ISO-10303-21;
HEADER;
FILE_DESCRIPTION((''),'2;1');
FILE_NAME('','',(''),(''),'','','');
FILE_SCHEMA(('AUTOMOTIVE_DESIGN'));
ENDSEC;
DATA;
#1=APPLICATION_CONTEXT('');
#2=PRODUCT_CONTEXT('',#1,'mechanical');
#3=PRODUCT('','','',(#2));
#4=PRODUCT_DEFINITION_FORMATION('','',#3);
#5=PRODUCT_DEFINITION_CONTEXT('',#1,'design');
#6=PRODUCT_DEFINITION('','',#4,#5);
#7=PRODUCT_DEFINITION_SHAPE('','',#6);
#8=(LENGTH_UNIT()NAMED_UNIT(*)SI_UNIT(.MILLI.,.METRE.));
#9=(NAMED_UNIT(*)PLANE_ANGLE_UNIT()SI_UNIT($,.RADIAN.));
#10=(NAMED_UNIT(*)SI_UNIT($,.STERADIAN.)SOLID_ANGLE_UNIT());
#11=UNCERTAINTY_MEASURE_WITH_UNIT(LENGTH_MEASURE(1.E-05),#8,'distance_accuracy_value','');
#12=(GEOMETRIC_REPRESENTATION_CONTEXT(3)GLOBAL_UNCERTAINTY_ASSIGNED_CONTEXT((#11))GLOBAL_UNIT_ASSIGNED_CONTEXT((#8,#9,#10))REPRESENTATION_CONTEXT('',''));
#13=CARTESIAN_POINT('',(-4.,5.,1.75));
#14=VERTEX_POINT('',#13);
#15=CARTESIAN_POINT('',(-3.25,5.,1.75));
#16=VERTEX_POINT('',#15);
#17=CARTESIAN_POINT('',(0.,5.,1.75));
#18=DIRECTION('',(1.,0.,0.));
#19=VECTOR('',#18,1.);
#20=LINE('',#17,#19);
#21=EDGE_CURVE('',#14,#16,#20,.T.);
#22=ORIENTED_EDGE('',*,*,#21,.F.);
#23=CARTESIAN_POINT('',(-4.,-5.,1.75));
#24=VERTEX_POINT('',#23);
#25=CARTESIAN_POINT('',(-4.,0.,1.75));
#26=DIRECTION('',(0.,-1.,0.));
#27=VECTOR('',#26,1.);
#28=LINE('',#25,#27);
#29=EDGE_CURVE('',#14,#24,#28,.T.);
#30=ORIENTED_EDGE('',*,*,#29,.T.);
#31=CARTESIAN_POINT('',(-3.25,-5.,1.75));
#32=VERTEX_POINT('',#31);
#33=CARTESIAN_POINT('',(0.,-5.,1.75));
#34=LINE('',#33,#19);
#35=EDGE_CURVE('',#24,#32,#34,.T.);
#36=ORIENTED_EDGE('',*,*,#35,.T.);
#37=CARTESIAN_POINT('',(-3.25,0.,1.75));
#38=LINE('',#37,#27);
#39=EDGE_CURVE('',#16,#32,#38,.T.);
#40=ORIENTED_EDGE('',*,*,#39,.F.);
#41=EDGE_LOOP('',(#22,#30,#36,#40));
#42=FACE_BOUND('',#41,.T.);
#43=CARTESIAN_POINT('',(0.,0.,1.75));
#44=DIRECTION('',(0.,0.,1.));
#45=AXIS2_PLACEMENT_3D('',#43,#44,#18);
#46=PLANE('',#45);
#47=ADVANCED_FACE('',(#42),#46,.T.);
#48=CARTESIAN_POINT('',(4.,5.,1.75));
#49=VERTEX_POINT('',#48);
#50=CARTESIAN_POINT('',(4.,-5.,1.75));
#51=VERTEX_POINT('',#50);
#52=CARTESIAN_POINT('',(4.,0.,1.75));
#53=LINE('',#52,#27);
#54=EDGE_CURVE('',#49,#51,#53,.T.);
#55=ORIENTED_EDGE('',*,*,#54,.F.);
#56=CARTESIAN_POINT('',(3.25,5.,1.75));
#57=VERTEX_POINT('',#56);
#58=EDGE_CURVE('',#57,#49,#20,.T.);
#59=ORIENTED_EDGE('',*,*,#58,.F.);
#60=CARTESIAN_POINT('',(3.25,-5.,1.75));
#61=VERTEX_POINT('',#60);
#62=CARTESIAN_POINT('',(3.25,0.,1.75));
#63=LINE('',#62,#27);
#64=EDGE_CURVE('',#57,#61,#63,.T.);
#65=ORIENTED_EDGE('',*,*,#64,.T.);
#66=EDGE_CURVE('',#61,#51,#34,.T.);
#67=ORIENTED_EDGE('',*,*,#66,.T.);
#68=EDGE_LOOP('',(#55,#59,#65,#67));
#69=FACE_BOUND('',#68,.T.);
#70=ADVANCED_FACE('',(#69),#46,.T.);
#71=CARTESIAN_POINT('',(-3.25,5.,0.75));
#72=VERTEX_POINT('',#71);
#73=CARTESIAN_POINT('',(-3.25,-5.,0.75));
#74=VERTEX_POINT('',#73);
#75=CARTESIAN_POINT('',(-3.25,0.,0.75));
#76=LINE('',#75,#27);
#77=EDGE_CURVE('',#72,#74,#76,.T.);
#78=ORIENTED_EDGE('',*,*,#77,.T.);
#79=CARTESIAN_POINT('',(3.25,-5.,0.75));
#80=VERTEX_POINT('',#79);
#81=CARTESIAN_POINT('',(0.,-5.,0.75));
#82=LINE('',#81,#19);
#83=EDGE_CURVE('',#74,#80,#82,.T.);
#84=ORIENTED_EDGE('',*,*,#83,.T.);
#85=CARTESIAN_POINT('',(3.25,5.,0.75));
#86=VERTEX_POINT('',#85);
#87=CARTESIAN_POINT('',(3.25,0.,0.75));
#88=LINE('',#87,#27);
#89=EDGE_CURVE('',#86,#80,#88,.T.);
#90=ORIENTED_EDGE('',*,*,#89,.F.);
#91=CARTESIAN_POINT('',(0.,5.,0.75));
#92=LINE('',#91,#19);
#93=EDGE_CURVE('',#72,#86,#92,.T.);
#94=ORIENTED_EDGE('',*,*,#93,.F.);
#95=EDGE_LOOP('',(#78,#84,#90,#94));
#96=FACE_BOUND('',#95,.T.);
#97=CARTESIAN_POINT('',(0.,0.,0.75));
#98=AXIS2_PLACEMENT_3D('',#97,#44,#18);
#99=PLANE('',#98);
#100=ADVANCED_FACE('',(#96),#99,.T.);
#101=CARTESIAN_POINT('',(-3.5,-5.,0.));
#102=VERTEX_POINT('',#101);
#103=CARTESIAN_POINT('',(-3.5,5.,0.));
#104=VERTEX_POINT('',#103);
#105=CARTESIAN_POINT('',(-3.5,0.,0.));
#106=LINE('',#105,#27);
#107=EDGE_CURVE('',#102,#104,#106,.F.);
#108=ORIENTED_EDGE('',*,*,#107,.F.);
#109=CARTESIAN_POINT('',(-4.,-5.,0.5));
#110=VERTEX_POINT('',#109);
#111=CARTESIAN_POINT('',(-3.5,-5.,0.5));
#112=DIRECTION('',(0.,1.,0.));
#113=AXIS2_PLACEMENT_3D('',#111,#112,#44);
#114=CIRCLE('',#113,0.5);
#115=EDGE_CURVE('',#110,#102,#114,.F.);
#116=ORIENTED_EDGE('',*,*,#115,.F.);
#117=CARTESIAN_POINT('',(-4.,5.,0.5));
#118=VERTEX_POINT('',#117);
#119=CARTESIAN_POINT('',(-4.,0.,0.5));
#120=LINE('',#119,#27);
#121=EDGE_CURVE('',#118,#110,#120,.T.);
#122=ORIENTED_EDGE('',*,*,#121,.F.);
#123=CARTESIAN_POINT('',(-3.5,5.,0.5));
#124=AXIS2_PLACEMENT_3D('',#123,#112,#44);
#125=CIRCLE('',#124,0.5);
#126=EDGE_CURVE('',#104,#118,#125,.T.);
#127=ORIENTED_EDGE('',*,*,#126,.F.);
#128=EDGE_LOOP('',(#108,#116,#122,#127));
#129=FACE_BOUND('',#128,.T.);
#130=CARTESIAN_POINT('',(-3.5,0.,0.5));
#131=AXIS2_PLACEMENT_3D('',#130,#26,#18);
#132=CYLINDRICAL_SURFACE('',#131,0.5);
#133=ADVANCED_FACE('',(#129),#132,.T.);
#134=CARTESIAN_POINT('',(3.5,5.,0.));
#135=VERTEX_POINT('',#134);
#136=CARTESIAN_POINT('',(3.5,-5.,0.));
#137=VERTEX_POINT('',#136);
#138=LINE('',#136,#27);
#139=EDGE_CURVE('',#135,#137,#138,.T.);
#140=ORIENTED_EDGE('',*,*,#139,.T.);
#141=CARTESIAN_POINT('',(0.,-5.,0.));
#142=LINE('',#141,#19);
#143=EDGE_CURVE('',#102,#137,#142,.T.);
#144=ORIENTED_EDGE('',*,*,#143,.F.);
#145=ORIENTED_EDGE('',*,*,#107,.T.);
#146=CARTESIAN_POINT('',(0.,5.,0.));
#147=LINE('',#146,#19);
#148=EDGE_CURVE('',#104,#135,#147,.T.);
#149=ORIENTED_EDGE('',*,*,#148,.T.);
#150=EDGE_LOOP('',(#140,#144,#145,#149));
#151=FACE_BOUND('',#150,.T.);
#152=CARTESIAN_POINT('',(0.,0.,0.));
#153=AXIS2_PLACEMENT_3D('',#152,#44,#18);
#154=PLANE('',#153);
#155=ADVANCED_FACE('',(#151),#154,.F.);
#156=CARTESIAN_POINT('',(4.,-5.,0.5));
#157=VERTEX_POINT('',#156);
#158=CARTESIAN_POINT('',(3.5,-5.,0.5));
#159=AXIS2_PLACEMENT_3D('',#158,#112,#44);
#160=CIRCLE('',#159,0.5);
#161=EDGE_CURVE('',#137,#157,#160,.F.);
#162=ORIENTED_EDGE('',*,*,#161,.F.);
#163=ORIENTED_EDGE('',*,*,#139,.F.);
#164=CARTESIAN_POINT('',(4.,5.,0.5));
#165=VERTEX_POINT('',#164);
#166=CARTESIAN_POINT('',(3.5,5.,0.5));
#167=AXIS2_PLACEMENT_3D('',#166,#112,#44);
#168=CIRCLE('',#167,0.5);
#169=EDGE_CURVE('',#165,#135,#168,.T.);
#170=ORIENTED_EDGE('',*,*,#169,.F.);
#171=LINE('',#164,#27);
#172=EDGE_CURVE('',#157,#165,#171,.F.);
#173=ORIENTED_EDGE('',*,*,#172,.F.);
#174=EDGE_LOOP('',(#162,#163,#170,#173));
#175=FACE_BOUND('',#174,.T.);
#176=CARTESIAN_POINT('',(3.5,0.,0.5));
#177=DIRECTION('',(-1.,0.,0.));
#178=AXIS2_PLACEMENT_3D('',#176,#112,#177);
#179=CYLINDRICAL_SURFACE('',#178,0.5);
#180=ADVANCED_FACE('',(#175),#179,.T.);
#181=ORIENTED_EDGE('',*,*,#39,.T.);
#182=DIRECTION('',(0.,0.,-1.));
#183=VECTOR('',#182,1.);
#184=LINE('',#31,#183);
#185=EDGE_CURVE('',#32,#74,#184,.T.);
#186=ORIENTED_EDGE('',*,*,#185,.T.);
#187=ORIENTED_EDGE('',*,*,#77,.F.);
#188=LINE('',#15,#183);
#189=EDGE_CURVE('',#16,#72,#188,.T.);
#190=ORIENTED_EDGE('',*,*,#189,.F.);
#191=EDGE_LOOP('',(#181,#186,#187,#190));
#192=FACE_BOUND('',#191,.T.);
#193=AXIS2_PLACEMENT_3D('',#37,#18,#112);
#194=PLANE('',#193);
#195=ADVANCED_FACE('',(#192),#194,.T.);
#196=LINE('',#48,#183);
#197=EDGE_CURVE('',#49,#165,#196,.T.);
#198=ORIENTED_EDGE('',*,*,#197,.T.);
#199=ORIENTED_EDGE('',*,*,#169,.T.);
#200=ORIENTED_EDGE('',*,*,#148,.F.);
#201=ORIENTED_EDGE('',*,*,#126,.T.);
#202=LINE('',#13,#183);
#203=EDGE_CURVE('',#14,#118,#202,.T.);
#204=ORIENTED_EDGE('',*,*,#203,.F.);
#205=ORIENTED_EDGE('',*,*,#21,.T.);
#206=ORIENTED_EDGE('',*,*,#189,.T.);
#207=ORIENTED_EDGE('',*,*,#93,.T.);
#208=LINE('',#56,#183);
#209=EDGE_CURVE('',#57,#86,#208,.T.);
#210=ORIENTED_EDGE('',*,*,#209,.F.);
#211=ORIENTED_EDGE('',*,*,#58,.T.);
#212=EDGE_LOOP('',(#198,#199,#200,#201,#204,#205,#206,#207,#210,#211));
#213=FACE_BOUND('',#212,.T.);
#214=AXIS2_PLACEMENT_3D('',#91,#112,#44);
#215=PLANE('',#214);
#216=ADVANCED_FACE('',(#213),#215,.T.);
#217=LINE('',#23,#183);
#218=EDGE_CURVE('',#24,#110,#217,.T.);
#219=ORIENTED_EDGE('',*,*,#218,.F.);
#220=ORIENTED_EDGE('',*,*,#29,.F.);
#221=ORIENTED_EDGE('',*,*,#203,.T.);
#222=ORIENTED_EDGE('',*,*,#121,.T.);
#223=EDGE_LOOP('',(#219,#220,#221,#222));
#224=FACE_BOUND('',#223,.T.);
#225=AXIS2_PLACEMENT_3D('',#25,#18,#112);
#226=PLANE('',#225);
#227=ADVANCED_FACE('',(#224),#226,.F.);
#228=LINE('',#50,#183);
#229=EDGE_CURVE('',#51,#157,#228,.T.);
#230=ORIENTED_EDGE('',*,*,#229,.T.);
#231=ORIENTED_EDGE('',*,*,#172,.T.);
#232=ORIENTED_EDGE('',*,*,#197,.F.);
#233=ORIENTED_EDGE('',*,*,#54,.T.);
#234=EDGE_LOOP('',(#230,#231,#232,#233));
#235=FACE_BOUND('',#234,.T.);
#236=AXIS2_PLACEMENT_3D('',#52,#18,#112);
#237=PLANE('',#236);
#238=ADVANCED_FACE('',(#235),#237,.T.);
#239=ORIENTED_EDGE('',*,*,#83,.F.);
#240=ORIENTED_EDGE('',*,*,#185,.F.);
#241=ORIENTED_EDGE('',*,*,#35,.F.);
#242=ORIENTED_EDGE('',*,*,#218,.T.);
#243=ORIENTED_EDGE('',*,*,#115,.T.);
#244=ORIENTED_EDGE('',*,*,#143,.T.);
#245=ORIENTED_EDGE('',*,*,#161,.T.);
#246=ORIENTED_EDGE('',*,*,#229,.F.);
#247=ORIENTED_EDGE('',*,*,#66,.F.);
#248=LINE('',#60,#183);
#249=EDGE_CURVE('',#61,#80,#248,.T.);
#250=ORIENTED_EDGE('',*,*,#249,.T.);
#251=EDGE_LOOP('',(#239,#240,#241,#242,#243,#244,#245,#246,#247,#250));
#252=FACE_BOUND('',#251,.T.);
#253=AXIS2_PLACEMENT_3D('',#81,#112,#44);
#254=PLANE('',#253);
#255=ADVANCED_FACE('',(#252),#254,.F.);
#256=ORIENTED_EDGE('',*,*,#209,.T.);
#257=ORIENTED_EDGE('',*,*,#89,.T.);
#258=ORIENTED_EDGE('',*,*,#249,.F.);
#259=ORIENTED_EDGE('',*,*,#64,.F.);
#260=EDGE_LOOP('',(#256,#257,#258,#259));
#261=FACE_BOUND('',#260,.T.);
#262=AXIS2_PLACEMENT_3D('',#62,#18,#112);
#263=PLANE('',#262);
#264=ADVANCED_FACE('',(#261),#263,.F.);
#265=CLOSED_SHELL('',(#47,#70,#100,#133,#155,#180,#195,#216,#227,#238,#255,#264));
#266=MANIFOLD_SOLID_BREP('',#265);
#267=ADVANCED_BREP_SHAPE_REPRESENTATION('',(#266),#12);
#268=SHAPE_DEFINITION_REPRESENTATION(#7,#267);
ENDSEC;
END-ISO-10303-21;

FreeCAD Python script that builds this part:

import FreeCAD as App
import Part
import Sketcher


def edges_at(feature, points):
    """Names of the edges that pass closest to the given points."""
    edges = feature.Shape.Edges
    near = lambda p: min(range(len(edges)), key=lambda i: edges[i].distToShape(Part.Vertex(*p))[0])
    return sorted({f"Edge{near(p) + 1}" for p in points})


def add_polygon(sketch, points):
    """Adds a closed chain of lines whose ends are joined by coincident constraints."""
    first, n = sketch.GeometryCount, len(points)
    for a, b in zip(points, points[1:] + points[:1]):
        sketch.addGeometry(Part.LineSegment(App.Vector(*a, 0), App.Vector(*b, 0)), False)
    for i in range(n):
        sketch.addConstraint(Sketcher.Constraint("Coincident", first + i, 2, first + (i + 1) % n, 1))

doc = App.newDocument("Part")
body = doc.addObject("PartDesign::Body", "Body")

# Sketch on XY plane
sketch1 = doc.addObject("Sketcher::SketchObject", "Sketch")
body.addObject(sketch1)
sketch1.AttachmentSupport = (doc.XY_Plane, [""])
sketch1.MapMode = "FlatFace"
add_polygon(sketch1, [(-3.25, 5), (-3.25, -5), (3.25, -5), (3.25, 5)])  # lines 0-3
sketch1.addConstraint([
    Sketcher.Constraint("Vertical", 0),
    Sketcher.Constraint("Horizontal", 1),
    Sketcher.Constraint("Vertical", 2),
    Sketcher.Constraint("Horizontal", 3),
    Sketcher.Constraint("Symmetric", 0, 2, 2, 2, -1, 1),
    Sketcher.Constraint("DistanceY", 0, 2, 0, 1, 10.0),
    Sketcher.Constraint("DistanceX", 1, 1, 1, 2, 6.5),
])
pad1 = doc.addObject("PartDesign::Pad", "Pad")
body.addObject(pad1)
pad1.Profile = sketch1
pad1.Length = 0.75

# Sketch on XY plane
sketch2 = doc.addObject("Sketcher::SketchObject", "Sketch001")
body.addObject(sketch2)
sketch2.AttachmentSupport = (doc.XY_Plane, [""])
sketch2.MapMode = "FlatFace"
add_polygon(sketch2, [(3.25, 5), (3.25, -5), (4, -5), (4, 5)])  # lines 0-3
add_polygon(sketch2, [(-4, 5), (-4, -5), (-3.25, -5), (-3.25, 5)])  # lines 4-7
sketch2.addConstraint([
    Sketcher.Constraint("Vertical", 0),
    Sketcher.Constraint("Horizontal", 1),
    Sketcher.Constraint("Vertical", 2),
    Sketcher.Constraint("Horizontal", 3),
    Sketcher.Constraint("Vertical", 4),
    Sketcher.Constraint("Horizontal", 5),
    Sketcher.Constraint("Vertical", 6),
    Sketcher.Constraint("Horizontal", 7),
    Sketcher.Constraint("Symmetric", 2, 2, 4, 2, -1, 1),
    Sketcher.Constraint("Symmetric", 0, 2, 6, 2, -1, 1),
    Sketcher.Constraint("Horizontal", 1, 2, 4, 2),
    Sketcher.Constraint("DistanceY", 0, 2, 0, 1, 10.0),
    Sketcher.Constraint("DistanceX", -1, 1, 1, 2, 4.0),
    Sketcher.Constraint("DistanceX", 1, 1, 1, 2, 0.75),
])
pad2 = doc.addObject("PartDesign::Pad", "Pad001")
body.addObject(pad2)
pad2.Profile = sketch2
pad2.Length = 1.75
doc.recompute()

fillet = doc.addObject("PartDesign::Fillet", "Fillet")
body.addObject(fillet)
fillet.Base = (pad2, edges_at(pad2, [(4, 0, 0), (-4, 0, 0)]))
fillet.Radius = 0.5

doc.recompute()
